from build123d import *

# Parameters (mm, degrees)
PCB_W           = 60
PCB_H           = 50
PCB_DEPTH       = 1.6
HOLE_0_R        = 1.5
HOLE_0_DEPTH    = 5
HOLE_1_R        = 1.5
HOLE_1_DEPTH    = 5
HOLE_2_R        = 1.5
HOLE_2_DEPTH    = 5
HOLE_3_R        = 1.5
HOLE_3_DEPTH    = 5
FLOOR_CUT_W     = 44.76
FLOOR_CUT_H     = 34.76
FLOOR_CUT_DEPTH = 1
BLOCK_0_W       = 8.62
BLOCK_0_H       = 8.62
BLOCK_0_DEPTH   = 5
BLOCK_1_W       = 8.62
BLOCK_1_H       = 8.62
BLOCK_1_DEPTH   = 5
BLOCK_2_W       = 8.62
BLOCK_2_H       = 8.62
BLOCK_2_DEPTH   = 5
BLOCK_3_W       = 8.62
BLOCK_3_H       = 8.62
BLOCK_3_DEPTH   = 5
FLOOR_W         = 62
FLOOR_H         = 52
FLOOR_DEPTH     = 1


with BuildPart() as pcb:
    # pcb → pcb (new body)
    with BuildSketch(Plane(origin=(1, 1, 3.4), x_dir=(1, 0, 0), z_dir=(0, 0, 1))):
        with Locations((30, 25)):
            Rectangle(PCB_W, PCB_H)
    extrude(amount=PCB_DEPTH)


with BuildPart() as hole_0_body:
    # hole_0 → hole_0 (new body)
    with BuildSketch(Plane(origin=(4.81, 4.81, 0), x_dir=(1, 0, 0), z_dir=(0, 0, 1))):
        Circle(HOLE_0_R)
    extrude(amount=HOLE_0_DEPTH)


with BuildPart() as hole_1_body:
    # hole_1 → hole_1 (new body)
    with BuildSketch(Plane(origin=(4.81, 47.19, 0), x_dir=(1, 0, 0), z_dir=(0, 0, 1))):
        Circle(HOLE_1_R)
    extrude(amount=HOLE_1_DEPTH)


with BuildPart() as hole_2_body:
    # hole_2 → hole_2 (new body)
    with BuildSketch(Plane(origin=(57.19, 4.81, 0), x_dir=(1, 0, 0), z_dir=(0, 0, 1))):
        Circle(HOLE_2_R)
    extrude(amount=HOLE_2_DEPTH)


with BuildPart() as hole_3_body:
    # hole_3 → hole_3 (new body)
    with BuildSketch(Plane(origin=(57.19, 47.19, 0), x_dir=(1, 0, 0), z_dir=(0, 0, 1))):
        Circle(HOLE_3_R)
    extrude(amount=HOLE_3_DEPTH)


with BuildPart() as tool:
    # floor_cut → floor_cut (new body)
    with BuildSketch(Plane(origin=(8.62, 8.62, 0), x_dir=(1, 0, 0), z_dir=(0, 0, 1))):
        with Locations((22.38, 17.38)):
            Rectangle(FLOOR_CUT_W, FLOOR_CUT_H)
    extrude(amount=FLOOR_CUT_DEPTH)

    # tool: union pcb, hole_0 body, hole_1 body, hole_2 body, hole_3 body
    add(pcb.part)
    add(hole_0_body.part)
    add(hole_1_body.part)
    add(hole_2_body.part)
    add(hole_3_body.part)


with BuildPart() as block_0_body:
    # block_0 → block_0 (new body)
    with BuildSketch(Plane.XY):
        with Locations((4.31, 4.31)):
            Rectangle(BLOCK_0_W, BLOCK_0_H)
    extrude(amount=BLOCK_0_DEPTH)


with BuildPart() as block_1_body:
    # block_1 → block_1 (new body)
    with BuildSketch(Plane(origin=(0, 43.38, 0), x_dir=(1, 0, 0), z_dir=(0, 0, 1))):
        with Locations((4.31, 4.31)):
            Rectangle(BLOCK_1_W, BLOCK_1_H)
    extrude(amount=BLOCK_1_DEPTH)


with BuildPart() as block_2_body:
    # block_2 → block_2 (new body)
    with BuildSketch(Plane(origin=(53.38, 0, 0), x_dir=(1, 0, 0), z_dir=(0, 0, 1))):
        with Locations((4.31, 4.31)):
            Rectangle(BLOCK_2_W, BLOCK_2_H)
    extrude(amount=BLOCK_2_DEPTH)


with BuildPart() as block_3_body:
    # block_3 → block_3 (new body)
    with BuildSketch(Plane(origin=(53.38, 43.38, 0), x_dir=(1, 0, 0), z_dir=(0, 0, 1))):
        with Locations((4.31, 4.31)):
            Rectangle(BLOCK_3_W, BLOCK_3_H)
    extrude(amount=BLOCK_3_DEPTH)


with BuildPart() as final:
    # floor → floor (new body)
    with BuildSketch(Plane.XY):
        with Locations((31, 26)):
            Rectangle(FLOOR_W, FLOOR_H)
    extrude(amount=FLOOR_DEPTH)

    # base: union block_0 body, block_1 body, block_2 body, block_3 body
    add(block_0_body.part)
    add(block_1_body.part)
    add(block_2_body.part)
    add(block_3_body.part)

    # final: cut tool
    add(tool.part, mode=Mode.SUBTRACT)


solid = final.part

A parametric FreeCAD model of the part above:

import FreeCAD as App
import Part
import Sketcher
from FreeCAD import Vector
Q = App.Units.Quantity


def add_polygon(sketch, points):
    """Adds a closed chain of lines whose ends are joined by coincident constraints."""
    first, n = sketch.GeometryCount, len(points)
    for a, b in zip(points, points[1:] + points[:1]):
        sketch.addGeometry(Part.LineSegment(App.Vector(*a, 0), App.Vector(*b, 0)), False)
    for i in range(n):
        sketch.addConstraint(Sketcher.Constraint("Coincident", first + i, 2, first + (i + 1) % n, 1))

doc = App.newDocument("Part")
params = doc.addObject("Spreadsheet::Sheet", "Params")
for row, (alias, value) in enumerate([
    ("sketch1_width", "60 mm"),
    ("sketch1_height", "50 mm"),
    ("pad1_length", "1.6 mm"),
    ("sketch2_diameter", "3 mm"),
    ("pad2_length", "5 mm"),
    ("sketch3_diameter", "3 mm"),
    ("pad3_length", "5 mm"),
    ("sketch4_diameter", "3 mm"),
    ("pad4_length", "5 mm"),
    ("sketch5_diameter", "3 mm"),
    ("pad5_length", "5 mm"),
    ("sketch6_width", "44.76 mm"),
    ("sketch6_height", "34.76 mm"),
    ("pad6_length", "1 mm"),
    ("sketch7_width", "8.62 mm"),
    ("pad7_length", "5 mm"),
    ("sketch8_width", "8.62 mm"),
    ("pad8_length", "5 mm"),
    ("sketch9_width", "8.62 mm"),
    ("pad9_length", "5 mm"),
    ("sketch10_width", "8.62 mm"),
    ("pad10_length", "5 mm"),
    ("sketch11_width", "62 mm"),
    ("sketch11_height", "52 mm"),
    ("pad11_length", "1 mm"),
], start=1):
    params.set(f"A{row}", alias)
    params.set(f"B{row}", "=" + value)
    params.setAlias(f"B{row}", alias)

body = doc.addObject("PartDesign::Body", "Body")

# Sketch on XY plane
sketch1 = body.newObject("Sketcher::SketchObject", "Sketch")
sketch1.AttachmentSupport = (doc.getObject("XY_Plane"), [""])
sketch1.MapMode = "FlatFace"
sketch1.AttachmentOffset = App.Placement(Vector(0, 0, 3.4), App.Rotation())
add_polygon(sketch1, [(1, 51), (1, 1), (61, 1), (61, 51)])  # lines 0-3
sketch1.addConstraint([
    Sketcher.Constraint("Vertical", 0),
    Sketcher.Constraint("Horizontal", 1),
    Sketcher.Constraint("Vertical", 2),
    Sketcher.Constraint("Horizontal", 3),
    Sketcher.Constraint("DistanceX", 1, 1, 1, 2, Q("60 mm")),
    Sketcher.Constraint("DistanceY", 0, 2, 0, 1, Q("50 mm")),
    Sketcher.Constraint("DistanceX", -1, 1, 0, 2, Q("1 mm")),
    Sketcher.Constraint("DistanceY", -1, 1, 0, 2, Q("1 mm")),
])
sketch1.setExpression("Constraints[8]", "Params.sketch1_width")
sketch1.setExpression("Constraints[9]", "Params.sketch1_height")
pad1 = body.newObject("PartDesign::Pad", "Pad")
pad1.Profile = sketch1
pad1.setExpression("Length", "Params.pad1_length")
body2 = doc.addObject("PartDesign::Body", "Body001")

# Sketch on XY plane
sketch2 = body2.newObject("Sketcher::SketchObject", "Sketch001")
sketch2.AttachmentSupport = (doc.getObject("XY_Plane001"), [""])
sketch2.MapMode = "FlatFace"
sketch2.addGeometry(Part.Circle(Vector(4.81, 4.81, 0), Vector(0, 0, 1), 1.5), False)
sketch2.addConstraint([
    Sketcher.Constraint("Diameter", 0, Q("3 mm")),
    Sketcher.Constraint("DistanceX", -1, 1, 0, 3, Q("4.81 mm")),
    Sketcher.Constraint("DistanceY", -1, 1, 0, 3, Q("4.81 mm")),
])
sketch2.setExpression("Constraints[0]", "Params.sketch2_diameter")
pad2 = body2.newObject("PartDesign::Pad", "Pad001")
pad2.Profile = sketch2
pad2.setExpression("Length", "Params.pad2_length")
body3 = doc.addObject("PartDesign::Body", "Body002")

# Sketch on XY plane
sketch3 = body3.newObject("Sketcher::SketchObject", "Sketch002")
sketch3.AttachmentSupport = (doc.getObject("XY_Plane002"), [""])
sketch3.MapMode = "FlatFace"
sketch3.addGeometry(Part.Circle(Vector(4.81, 47.19, 0), Vector(0, 0, 1), 1.5), False)
sketch3.addConstraint([
    Sketcher.Constraint("Diameter", 0, Q("3 mm")),
    Sketcher.Constraint("DistanceX", -1, 1, 0, 3, Q("4.81 mm")),
    Sketcher.Constraint("DistanceY", -1, 1, 0, 3, Q("47.19 mm")),
])
sketch3.setExpression("Constraints[0]", "Params.sketch3_diameter")
pad3 = body3.newObject("PartDesign::Pad", "Pad002")
pad3.Profile = sketch3
pad3.setExpression("Length", "Params.pad3_length")
body4 = doc.addObject("PartDesign::Body", "Body003")

# Sketch on XY plane
sketch4 = body4.newObject("Sketcher::SketchObject", "Sketch003")
sketch4.AttachmentSupport = (doc.getObject("XY_Plane003"), [""])
sketch4.MapMode = "FlatFace"
sketch4.addGeometry(Part.Circle(Vector(57.19, 4.81, 0), Vector(0, 0, 1), 1.5), False)
sketch4.addConstraint([
    Sketcher.Constraint("Diameter", 0, Q("3 mm")),
    Sketcher.Constraint("DistanceX", -1, 1, 0, 3, Q("57.19 mm")),
    Sketcher.Constraint("DistanceY", -1, 1, 0, 3, Q("4.81 mm")),
])
sketch4.setExpression("Constraints[0]", "Params.sketch4_diameter")
pad4 = body4.newObject("PartDesign::Pad", "Pad003")
pad4.Profile = sketch4
pad4.setExpression("Length", "Params.pad4_length")
body5 = doc.addObject("PartDesign::Body", "Body004")

# Sketch on XY plane
sketch5 = body5.newObject("Sketcher::SketchObject", "Sketch004")
sketch5.AttachmentSupport = (doc.getObject("XY_Plane004"), [""])
sketch5.MapMode = "FlatFace"
sketch5.addGeometry(Part.Circle(Vector(57.19, 47.19, 0), Vector(0, 0, 1), 1.5), False)
sketch5.addConstraint([
    Sketcher.Constraint("Diameter", 0, Q("3 mm")),
    Sketcher.Constraint("DistanceX", -1, 1, 0, 3, Q("57.19 mm")),
    Sketcher.Constraint("DistanceY", -1, 1, 0, 3, Q("47.19 mm")),
])
sketch5.setExpression("Constraints[0]", "Params.sketch5_diameter")
pad5 = body5.newObject("PartDesign::Pad", "Pad004")
pad5.Profile = sketch5
pad5.setExpression("Length", "Params.pad5_length")
body6 = doc.addObject("PartDesign::Body", "Body005")
body6.AllowCompound = True

# Sketch on XY plane
sketch6 = body6.newObject("Sketcher::SketchObject", "Sketch005")
sketch6.AttachmentSupport = (doc.getObject("XY_Plane005"), [""])
sketch6.MapMode = "FlatFace"
add_polygon(sketch6, [(8.62, 43.38), (8.62, 8.62), (53.38, 8.62), (53.38, 43.38)])  # lines 0-3
sketch6.addConstraint([
    Sketcher.Constraint("Vertical", 0),
    Sketcher.Constraint("Horizontal", 1),
    Sketcher.Constraint("Vertical", 2),
    Sketcher.Constraint("Horizontal", 3),
    Sketcher.Constraint("DistanceX", 1, 1, 1, 2, Q("44.76 mm")),
    Sketcher.Constraint("DistanceY", 0, 2, 0, 1, Q("34.76 mm")),
    Sketcher.Constraint("DistanceX", -1, 1, 0, 2, Q("8.62 mm")),
    Sketcher.Constraint("DistanceY", -1, 1, 0, 2, Q("8.62 mm")),
])
sketch6.setExpression("Constraints[8]", "Params.sketch6_width")
sketch6.setExpression("Constraints[9]", "Params.sketch6_height")
pad6 = body6.newObject("PartDesign::Pad", "Pad005")
pad6.Profile = sketch6
pad6.setExpression("Length", "Params.pad6_length")
doc.recompute()

boolean = body6.newObject("PartDesign::Boolean", "Boolean")
boolean.Type = "Fuse"
boolean.addObjects([body])
doc.recompute()

boolean2 = body6.newObject("PartDesign::Boolean", "Boolean001")
boolean2.Type = "Fuse"
boolean2.addObjects([body2])
doc.recompute()

boolean3 = body6.newObject("PartDesign::Boolean", "Boolean002")
boolean3.Type = "Fuse"
boolean3.addObjects([body3])
doc.recompute()

boolean4 = body6.newObject("PartDesign::Boolean", "Boolean003")
boolean4.Type = "Fuse"
boolean4.addObjects([body4])
doc.recompute()

boolean5 = body6.newObject("PartDesign::Boolean", "Boolean004")
boolean5.Type = "Fuse"
boolean5.addObjects([body5])
body7 = doc.addObject("PartDesign::Body", "Body006")

# Sketch on XY plane
sketch7 = body7.newObject("Sketcher::SketchObject", "Sketch006")
sketch7.AttachmentSupport = (doc.getObject("XY_Plane006"), [""])
sketch7.MapMode = "FlatFace"
add_polygon(sketch7, [(0, 8.62), (0, 0), (8.62, 0), (8.62, 8.62)])  # lines 0-3
sketch7.addConstraint([
    Sketcher.Constraint("Vertical", 0),
    Sketcher.Constraint("Horizontal", 1),
    Sketcher.Constraint("Vertical", 2),
    Sketcher.Constraint("Horizontal", 3),
    Sketcher.Constraint("Coincident", 0, 2, -1, 1),
    Sketcher.Constraint("Equal", 3, 0),
    Sketcher.Constraint("DistanceX", 1, 1, 1, 2, Q("8.62 mm")),
])
sketch7.setExpression("Constraints[10]", "Params.sketch7_width")
pad7 = body7.newObject("PartDesign::Pad", "Pad006")
pad7.Profile = sketch7
pad7.setExpression("Length", "Params.pad7_length")
body8 = doc.addObject("PartDesign::Body", "Body007")

# Sketch on XY plane
sketch8 = body8.newObject("Sketcher::SketchObject", "Sketch007")
sketch8.AttachmentSupport = (doc.getObject("XY_Plane007"), [""])
sketch8.MapMode = "FlatFace"
add_polygon(sketch8, [(0, 52), (0, 43.38), (8.62, 43.38), (8.62, 52)])  # lines 0-3
sketch8.addConstraint([
    Sketcher.Constraint("Vertical", 0),
    Sketcher.Constraint("Horizontal", 1),
    Sketcher.Constraint("Vertical", 2),
    Sketcher.Constraint("Horizontal", 3),
    Sketcher.Constraint("PointOnObject", 0, 2, -2),
    Sketcher.Constraint("Equal", 3, 0),
    Sketcher.Constraint("DistanceY", -1, 1, 2, 2, Q("52 mm")),
    Sketcher.Constraint("DistanceX", 1, 1, 1, 2, Q("8.62 mm")),
])
sketch8.setExpression("Constraints[11]", "Params.sketch8_width")
pad8 = body8.newObject("PartDesign::Pad", "Pad007")
pad8.Profile = sketch8
pad8.setExpression("Length", "Params.pad8_length")
body9 = doc.addObject("PartDesign::Body", "Body008")

# Sketch on XY plane
sketch9 = body9.newObject("Sketcher::SketchObject", "Sketch008")
sketch9.AttachmentSupport = (doc.getObject("XY_Plane008"), [""])
sketch9.MapMode = "FlatFace"
add_polygon(sketch9, [(53.38, 8.62), (53.38, 0), (62, 0), (62, 8.62)])  # lines 0-3
sketch9.addConstraint([
    Sketcher.Constraint("Vertical", 0),
    Sketcher.Constraint("Horizontal", 1),
    Sketcher.Constraint("Vertical", 2),
    Sketcher.Constraint("Horizontal", 3),
    Sketcher.Constraint("PointOnObject", 0, 2, -1),
    Sketcher.Constraint("Equal", 3, 0),
    Sketcher.Constraint("DistanceX", -1, 1, 1, 2, Q("62 mm")),
    Sketcher.Constraint("DistanceX", 1, 1, 1, 2, Q("8.62 mm")),
])
sketch9.setExpression("Constraints[11]", "Params.sketch9_width")
pad9 = body9.newObject("PartDesign::Pad", "Pad008")
pad9.Profile = sketch9
pad9.setExpression("Length", "Params.pad9_length")
body10 = doc.addObject("PartDesign::Body", "Body009")

# Sketch on XY plane
sketch10 = body10.newObject("Sketcher::SketchObject", "Sketch009")
sketch10.AttachmentSupport = (doc.getObject("XY_Plane009"), [""])
sketch10.MapMode = "FlatFace"
add_polygon(sketch10, [(53.38, 52), (53.38, 43.38), (62, 43.38), (62, 52)])  # lines 0-3
sketch10.addConstraint([
    Sketcher.Constraint("Vertical", 0),
    Sketcher.Constraint("Horizontal", 1),
    Sketcher.Constraint("Vertical", 2),
    Sketcher.Constraint("Horizontal", 3),
    Sketcher.Constraint("Equal", 3, 0),
    Sketcher.Constraint("DistanceX", -1, 1, 1, 2, Q("62 mm")),
    Sketcher.Constraint("DistanceY", -1, 1, 2, 2, Q("52 mm")),
    Sketcher.Constraint("DistanceX", 1, 1, 1, 2, Q("8.62 mm")),
])
sketch10.setExpression("Constraints[11]", "Params.sketch10_width")
pad10 = body10.newObject("PartDesign::Pad", "Pad009")
pad10.Profile = sketch10
pad10.setExpression("Length", "Params.pad10_length")
body11 = doc.addObject("PartDesign::Body", "Body010")

# Sketch on XY plane
sketch11 = body11.newObject("Sketcher::SketchObject", "Sketch010")
sketch11.AttachmentSupport = (doc.getObject("XY_Plane010"), [""])
sketch11.MapMode = "FlatFace"
add_polygon(sketch11, [(0, 52), (0, 0), (62, 0), (62, 52)])  # lines 0-3
sketch11.addConstraint([
    Sketcher.Constraint("Vertical", 0),
    Sketcher.Constraint("Horizontal", 1),
    Sketcher.Constraint("Vertical", 2),
    Sketcher.Constraint("Horizontal", 3),
    Sketcher.Constraint("Coincident", 0, 2, -1, 1),
    Sketcher.Constraint("DistanceX", 1, 1, 1, 2, Q("62 mm")),
    Sketcher.Constraint("DistanceY", 0, 2, 0, 1, Q("52 mm")),
])
sketch11.setExpression("Constraints[9]", "Params.sketch11_width")
sketch11.setExpression("Constraints[10]", "Params.sketch11_height")
pad11 = body11.newObject("PartDesign::Pad", "Pad010")
pad11.Profile = sketch11
pad11.setExpression("Length", "Params.pad11_length")
doc.recompute()

boolean6 = body11.newObject("PartDesign::Boolean", "Boolean005")
boolean6.Type = "Fuse"
boolean6.addObjects([body7])
doc.recompute()

boolean7 = body11.newObject("PartDesign::Boolean", "Boolean006")
boolean7.Type = "Fuse"
boolean7.addObjects([body8])
doc.recompute()

boolean8 = body11.newObject("PartDesign::Boolean", "Boolean007")
boolean8.Type = "Fuse"
boolean8.addObjects([body9])
doc.recompute()

boolean9 = body11.newObject("PartDesign::Boolean", "Boolean008")
boolean9.Type = "Fuse"
boolean9.addObjects([body10])
doc.recompute()

boolean10 = body11.newObject("PartDesign::Boolean", "Boolean009")
boolean10.Type = "Cut"
boolean10.addObjects([body6])

doc.recompute()
